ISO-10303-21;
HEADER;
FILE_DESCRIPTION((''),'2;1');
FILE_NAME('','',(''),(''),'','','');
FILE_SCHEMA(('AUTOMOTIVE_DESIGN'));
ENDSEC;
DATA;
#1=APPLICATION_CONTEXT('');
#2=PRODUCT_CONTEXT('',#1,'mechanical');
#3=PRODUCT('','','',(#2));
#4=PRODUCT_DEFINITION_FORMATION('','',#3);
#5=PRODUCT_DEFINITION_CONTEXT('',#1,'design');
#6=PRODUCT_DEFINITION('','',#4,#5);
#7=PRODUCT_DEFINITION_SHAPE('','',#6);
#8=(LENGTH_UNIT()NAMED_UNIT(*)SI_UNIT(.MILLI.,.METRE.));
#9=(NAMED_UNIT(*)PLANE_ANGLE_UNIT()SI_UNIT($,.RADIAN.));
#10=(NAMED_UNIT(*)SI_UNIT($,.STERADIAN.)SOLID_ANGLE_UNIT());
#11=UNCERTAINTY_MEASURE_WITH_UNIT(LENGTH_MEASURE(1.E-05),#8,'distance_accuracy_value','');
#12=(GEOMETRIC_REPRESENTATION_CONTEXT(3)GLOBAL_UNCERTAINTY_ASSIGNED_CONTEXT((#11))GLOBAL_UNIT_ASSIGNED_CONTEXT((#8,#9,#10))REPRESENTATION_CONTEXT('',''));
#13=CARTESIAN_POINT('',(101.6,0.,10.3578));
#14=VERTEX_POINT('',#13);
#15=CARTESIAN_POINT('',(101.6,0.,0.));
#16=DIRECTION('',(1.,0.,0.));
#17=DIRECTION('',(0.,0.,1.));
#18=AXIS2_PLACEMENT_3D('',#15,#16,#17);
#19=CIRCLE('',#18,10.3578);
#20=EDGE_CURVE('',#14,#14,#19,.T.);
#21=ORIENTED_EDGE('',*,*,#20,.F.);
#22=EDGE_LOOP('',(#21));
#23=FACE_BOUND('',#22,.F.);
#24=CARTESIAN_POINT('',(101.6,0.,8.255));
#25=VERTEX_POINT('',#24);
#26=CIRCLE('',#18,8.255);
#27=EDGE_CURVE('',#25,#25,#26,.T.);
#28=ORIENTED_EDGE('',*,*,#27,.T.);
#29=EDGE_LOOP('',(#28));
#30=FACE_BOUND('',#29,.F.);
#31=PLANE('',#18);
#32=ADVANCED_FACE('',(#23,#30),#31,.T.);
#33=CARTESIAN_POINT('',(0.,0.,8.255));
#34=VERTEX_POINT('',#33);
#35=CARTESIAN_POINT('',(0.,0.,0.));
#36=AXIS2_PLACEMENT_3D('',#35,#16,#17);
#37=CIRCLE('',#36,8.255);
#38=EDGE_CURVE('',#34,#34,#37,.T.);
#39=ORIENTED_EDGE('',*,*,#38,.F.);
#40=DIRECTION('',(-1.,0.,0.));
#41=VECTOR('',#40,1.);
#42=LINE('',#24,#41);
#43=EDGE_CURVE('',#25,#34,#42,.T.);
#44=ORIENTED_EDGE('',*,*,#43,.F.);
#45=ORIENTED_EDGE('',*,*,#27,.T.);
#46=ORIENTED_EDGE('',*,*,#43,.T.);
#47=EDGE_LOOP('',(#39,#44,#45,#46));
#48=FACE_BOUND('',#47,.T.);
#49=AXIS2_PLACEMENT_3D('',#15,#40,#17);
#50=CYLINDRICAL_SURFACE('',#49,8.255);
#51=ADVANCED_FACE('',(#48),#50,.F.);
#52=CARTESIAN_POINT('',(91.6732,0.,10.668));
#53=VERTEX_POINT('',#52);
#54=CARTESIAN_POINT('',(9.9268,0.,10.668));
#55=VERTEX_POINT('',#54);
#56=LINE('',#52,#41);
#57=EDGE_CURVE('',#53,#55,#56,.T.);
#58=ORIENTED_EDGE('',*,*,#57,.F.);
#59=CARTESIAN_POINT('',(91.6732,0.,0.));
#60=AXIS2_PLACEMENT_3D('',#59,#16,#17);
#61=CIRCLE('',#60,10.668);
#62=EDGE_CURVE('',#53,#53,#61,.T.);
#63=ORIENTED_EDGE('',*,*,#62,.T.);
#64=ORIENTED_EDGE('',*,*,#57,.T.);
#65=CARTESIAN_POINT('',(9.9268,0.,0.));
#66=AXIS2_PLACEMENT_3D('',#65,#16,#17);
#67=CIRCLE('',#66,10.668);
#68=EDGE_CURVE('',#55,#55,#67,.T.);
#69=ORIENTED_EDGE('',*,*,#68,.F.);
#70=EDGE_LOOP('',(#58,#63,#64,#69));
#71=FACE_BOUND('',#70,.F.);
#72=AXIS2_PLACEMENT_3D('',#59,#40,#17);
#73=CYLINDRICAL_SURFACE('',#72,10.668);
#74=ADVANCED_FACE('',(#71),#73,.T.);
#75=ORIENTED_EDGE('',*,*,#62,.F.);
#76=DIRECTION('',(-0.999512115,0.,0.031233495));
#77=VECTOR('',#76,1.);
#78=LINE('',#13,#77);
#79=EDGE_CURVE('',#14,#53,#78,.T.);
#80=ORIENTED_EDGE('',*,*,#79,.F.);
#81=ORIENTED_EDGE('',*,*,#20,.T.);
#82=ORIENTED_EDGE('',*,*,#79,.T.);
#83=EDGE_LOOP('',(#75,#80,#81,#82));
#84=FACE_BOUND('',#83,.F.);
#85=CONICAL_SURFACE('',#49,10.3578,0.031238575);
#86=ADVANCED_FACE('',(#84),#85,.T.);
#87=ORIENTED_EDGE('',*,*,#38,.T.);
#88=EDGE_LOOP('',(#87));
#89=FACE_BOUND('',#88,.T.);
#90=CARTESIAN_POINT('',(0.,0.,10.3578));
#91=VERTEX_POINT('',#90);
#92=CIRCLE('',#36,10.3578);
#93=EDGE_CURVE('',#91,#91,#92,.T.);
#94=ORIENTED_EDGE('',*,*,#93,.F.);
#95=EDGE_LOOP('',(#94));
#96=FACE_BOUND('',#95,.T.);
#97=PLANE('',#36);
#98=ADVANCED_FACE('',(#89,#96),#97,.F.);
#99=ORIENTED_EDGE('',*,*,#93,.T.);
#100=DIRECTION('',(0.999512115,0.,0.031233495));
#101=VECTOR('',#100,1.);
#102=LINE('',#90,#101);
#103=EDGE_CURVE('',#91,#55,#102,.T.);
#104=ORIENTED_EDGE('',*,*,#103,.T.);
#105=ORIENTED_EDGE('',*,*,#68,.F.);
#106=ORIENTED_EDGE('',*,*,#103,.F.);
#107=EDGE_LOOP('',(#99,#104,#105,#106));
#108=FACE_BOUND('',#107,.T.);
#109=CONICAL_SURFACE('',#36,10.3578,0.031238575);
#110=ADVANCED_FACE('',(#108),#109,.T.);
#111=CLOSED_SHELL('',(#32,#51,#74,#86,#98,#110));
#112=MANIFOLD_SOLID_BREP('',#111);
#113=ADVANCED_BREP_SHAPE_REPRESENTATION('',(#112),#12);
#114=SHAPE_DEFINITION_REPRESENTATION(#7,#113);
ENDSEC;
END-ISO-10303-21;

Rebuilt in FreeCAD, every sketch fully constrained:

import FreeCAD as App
import Part
import Sketcher
from FreeCAD import Vector
Q = App.Units.Quantity


def add_polygon(sketch, points):
    """Adds a closed chain of lines whose ends are joined by coincident constraints."""
    first, n = sketch.GeometryCount, len(points)
    for a, b in zip(points, points[1:] + points[:1]):
        sketch.addGeometry(Part.LineSegment(App.Vector(*a, 0), App.Vector(*b, 0)), False)
    for i in range(n):
        sketch.addConstraint(Sketcher.Constraint("Coincident", first + i, 2, first + (i + 1) % n, 1))

doc = App.newDocument("Part")
body = doc.addObject("PartDesign::Body", "Body")

# Sketch on XZ plane
sketch1 = body.newObject("Sketcher::SketchObject", "Sketch")
sketch1.AttachmentSupport = (doc.getObject("XZ_Plane"), [""])
sketch1.MapMode = "FlatFace"
add_polygon(sketch1, [(101.6, 10.4), (101.6, 8.3), (0, 8.3), (0, 10.4), (9.9, 10.7), (91.7, 10.7)])  # lines 0-5
sketch1.addConstraint(Sketcher.Constraint("Vertical", 0))
sketch1.addConstraint(Sketcher.Constraint("Horizontal", 1))
sketch1.addConstraint(Sketcher.Constraint("Vertical", 2))
sketch1.addConstraint(Sketcher.Constraint("Horizontal", 4))
sketch1.addConstraint(Sketcher.Constraint("PointOnObject", 1, 2, -2))
sketch1.addConstraint(Sketcher.Constraint("Horizontal", 2, 2, 5, 2))
sketch1.addConstraint(Sketcher.Constraint("Equal", 3, 5))
sketch1.addConstraint(Sketcher.Constraint("DistanceX", 1, 2, 1, 1, Q("4 in")))
sketch1.addConstraint(Sketcher.Constraint("Angle", 3, Q("1.7898 deg")))
sketch1.addConstraint(Sketcher.Constraint("DistanceY", -1, 1, 3, 2, Q("0.42 in")))
sketch1.addConstraint(Sketcher.Constraint("Distance", 3, Q("0.391 in")))
sketch1.addConstraint(Sketcher.Constraint("DistanceY", -1, 1, 0, 2, Q("0.325 in")))
revolution = body.newObject("PartDesign::Revolution", "Revolution")
revolution.Profile = sketch1
revolution.ReferenceAxis = (sketch1, ["H_Axis"])
revolution.Angle = 360

doc.recompute()
